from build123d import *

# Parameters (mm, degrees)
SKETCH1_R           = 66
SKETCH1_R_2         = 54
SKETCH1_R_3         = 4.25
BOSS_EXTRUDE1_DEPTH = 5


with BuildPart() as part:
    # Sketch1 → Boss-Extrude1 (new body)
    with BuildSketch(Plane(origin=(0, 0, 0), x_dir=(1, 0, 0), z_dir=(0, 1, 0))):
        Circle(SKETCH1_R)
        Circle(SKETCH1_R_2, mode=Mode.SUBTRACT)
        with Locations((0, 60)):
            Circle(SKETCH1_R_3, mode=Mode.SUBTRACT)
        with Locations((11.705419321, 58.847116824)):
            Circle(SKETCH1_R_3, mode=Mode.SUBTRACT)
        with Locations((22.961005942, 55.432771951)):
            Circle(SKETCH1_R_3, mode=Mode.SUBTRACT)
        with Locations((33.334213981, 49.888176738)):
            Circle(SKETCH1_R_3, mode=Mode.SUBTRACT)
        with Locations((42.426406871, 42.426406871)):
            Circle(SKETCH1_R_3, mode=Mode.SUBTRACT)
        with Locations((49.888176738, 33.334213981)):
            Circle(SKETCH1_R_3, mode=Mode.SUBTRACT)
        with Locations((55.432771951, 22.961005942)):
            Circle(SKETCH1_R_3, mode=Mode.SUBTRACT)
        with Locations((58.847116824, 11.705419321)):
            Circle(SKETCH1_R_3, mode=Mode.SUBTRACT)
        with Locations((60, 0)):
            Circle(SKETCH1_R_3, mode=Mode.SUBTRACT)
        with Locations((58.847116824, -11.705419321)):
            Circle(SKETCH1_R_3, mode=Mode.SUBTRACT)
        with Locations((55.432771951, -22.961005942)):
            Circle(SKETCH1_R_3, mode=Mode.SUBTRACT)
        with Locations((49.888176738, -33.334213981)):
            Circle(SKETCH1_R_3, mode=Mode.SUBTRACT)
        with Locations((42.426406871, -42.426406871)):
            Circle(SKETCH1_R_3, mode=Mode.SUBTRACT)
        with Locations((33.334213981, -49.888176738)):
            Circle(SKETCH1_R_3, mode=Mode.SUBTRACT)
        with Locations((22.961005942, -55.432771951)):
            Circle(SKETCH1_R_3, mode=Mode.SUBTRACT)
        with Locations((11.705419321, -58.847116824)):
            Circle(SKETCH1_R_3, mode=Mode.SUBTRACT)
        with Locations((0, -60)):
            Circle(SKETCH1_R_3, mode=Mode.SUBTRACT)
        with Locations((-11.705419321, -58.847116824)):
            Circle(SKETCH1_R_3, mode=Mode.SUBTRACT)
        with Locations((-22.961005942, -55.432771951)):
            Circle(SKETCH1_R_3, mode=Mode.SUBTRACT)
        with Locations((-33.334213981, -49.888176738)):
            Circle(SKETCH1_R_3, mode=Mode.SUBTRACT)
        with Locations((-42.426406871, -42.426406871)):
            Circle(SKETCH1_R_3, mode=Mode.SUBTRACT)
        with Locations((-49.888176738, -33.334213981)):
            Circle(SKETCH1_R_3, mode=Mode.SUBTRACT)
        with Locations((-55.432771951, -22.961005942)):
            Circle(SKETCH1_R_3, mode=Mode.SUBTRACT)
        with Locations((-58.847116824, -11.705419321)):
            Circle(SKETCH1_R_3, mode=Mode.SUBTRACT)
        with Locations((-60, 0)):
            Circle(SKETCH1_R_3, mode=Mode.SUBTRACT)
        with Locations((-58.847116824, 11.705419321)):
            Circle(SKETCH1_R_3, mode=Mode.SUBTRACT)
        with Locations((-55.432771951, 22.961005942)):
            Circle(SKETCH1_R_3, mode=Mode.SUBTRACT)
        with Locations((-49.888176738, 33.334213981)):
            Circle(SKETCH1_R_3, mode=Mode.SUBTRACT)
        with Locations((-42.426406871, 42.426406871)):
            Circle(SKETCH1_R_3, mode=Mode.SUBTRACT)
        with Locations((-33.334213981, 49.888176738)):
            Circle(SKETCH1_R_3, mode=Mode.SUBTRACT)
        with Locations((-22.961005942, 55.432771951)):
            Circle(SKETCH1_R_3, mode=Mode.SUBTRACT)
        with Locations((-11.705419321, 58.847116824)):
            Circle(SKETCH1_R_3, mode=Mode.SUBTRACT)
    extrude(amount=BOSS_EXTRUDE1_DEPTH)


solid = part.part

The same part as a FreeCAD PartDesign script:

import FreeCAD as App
import Part
import Sketcher
from FreeCAD import Vector
Q = App.Units.Quantity

doc = App.newDocument("Part")
body = doc.addObject("PartDesign::Body", "Body")

# Sketch on XZ plane
sketch1 = body.newObject("Sketcher::SketchObject", "Sketch")
sketch1.AttachmentSupport = (doc.getObject("XZ_Plane"), [""])
sketch1.MapMode = "FlatFace"
sketch1.addGeometry([
    Part.Circle(Vector(0, 0, 0), Vector(0, 0, 1), 66),  # 0
    Part.Circle(Vector(-33.334214, 49.888177, 0), Vector(0, 0, 1), 4.25),  # 1
    Part.Circle(Vector(-49.888177, 33.334214, 0), Vector(0, 0, 1), 4.25),  # 2
    Part.Circle(Vector(-42.426407, 42.426407, 0), Vector(0, 0, 1), 4.25),  # 3
    Part.Circle(Vector(-22.961006, 55.432772, 0), Vector(0, 0, 1), 4.25),  # 4
    Part.Circle(Vector(-11.705419, 58.847117, 0), Vector(0, 0, 1), 4.25),  # 5
    Part.Circle(Vector(-55.432772, 22.961006, 0), Vector(0, 0, 1), 4.25),  # 6
    Part.Circle(Vector(-58.847117, 11.705419, 0), Vector(0, 0, 1), 4.25),  # 7
    Part.Circle(Vector(0, 60, 0), Vector(0, 0, 1), 4.25),  # 8
    Part.Circle(Vector(11.705419, 58.847117, 0), Vector(0, 0, 1), 4.25),  # 9
    Part.Circle(Vector(22.961006, 55.432772, 0), Vector(0, 0, 1), 4.25),  # 10
    Part.Circle(Vector(33.334214, 49.888177, 0), Vector(0, 0, 1), 4.25),  # 11
    Part.Circle(Vector(42.426407, 42.426407, 0), Vector(0, 0, 1), 4.25),  # 12
    Part.Circle(Vector(49.888177, 33.334214, 0), Vector(0, 0, 1), 4.25),  # 13
    Part.Circle(Vector(55.432772, 22.961006, 0), Vector(0, 0, 1), 4.25),  # 14
    Part.Circle(Vector(58.847117, 11.705419, 0), Vector(0, 0, 1), 4.25),  # 15
    Part.Circle(Vector(-60, 0, 0), Vector(0, 0, 1), 4.25),  # 16
    Part.Circle(Vector(-58.847117, -11.705419, 0), Vector(0, 0, 1), 4.25),  # 17
    Part.Circle(Vector(-55.432772, -22.961006, 0), Vector(0, 0, 1), 4.25),  # 18
    Part.Circle(Vector(-49.888177, -33.334214, 0), Vector(0, 0, 1), 4.25),  # 19
    Part.Circle(Vector(-42.426407, -42.426407, 0), Vector(0, 0, 1), 4.25),  # 20
    Part.Circle(Vector(-33.334214, -49.888177, 0), Vector(0, 0, 1), 4.25),  # 21
    Part.Circle(Vector(-22.961006, -55.432772, 0), Vector(0, 0, 1), 4.25),  # 22
    Part.Circle(Vector(-11.705419, -58.847117, 0), Vector(0, 0, 1), 4.25),  # 23
    Part.Circle(Vector(0, 0, 0), Vector(0, 0, 1), 54),  # 24
    Part.Circle(Vector(60, 0, 0), Vector(0, 0, 1), 4.25),  # 25
    Part.Circle(Vector(58.847117, -11.705419, 0), Vector(0, 0, 1), 4.25),  # 26
    Part.Circle(Vector(55.432772, -22.961006, 0), Vector(0, 0, 1), 4.25),  # 27
    Part.Circle(Vector(0, -60, 0), Vector(0, 0, 1), 4.25),  # 28
    Part.Circle(Vector(11.705419, -58.847117, 0), Vector(0, 0, 1), 4.25),  # 29
    Part.Circle(Vector(22.961006, -55.432772, 0), Vector(0, 0, 1), 4.25),  # 30
    Part.Circle(Vector(42.426407, -42.426407, 0), Vector(0, 0, 1), 4.25),  # 31
    Part.Circle(Vector(49.888177, -33.334214, 0), Vector(0, 0, 1), 4.25),  # 32
    Part.Circle(Vector(33.334214, -49.888177, 0), Vector(0, 0, 1), 4.25),  # 33
], False)
sketch1.addConstraint([
    Sketcher.Constraint("Coincident", 0, 3, -1, 1),
    Sketcher.Constraint("Coincident", 24, 3, -1, 1),
    Sketcher.Constraint("Equal", 1, 2),
    Sketcher.Constraint("Equal", 2, 3),
    Sketcher.Constraint("Equal", 3, 4),
    Sketcher.Constraint("Equal", 4, 5),
    Sketcher.Constraint("Equal", 5, 6),
    Sketcher.Constraint("Equal", 6, 7),
    Sketcher.Constraint("Equal", 7, 8),
    Sketcher.Constraint("Equal", 8, 9),
    Sketcher.Constraint("Equal", 9, 10),
    Sketcher.Constraint("Equal", 10, 11),
    Sketcher.Constraint("Equal", 11, 12),
    Sketcher.Constraint("Equal", 12, 13),
    Sketcher.Constraint("Equal", 13, 14),
    Sketcher.Constraint("Equal", 14, 15),
    Sketcher.Constraint("Equal", 15, 16),
    Sketcher.Constraint("Equal", 16, 17),
    Sketcher.Constraint("Equal", 17, 18),
    Sketcher.Constraint("Equal", 18, 19),
    Sketcher.Constraint("Equal", 19, 20),
    Sketcher.Constraint("Equal", 20, 21),
    Sketcher.Constraint("Equal", 21, 22),
    Sketcher.Constraint("Equal", 22, 23),
    Sketcher.Constraint("Equal", 23, 25),
    Sketcher.Constraint("Equal", 25, 26),
    Sketcher.Constraint("Equal", 26, 27),
    Sketcher.Constraint("Equal", 27, 28),
    Sketcher.Constraint("Equal", 28, 29),
    Sketcher.Constraint("Equal", 29, 30),
    Sketcher.Constraint("Equal", 30, 31),
    Sketcher.Constraint("Equal", 31, 32),
    Sketcher.Constraint("Equal", 32, 33),
    Sketcher.Constraint("Symmetric", 15, 3, 17, 3, -1, 1),
    Sketcher.Constraint("Symmetric", 14, 3, 18, 3, -1, 1),
    Sketcher.Constraint("Symmetric", 13, 3, 19, 3, -1, 1),
    Sketcher.Constraint("Symmetric", 12, 3, 20, 3, -1, 1),
    Sketcher.Constraint("Symmetric", 11, 3, 21, 3, -1, 1),
    Sketcher.Constraint("Symmetric", 10, 3, 22, 3, -1, 1),
    Sketcher.Constraint("Symmetric", 9, 3, 23, 3, -1, 1),
    Sketcher.Constraint("Symmetric", 16, 3, 25, 3, -1, 1),
    Sketcher.Constraint("Symmetric", 7, 3, 26, 3, -1, 1),
    Sketcher.Constraint("Symmetric", 6, 3, 27, 3, -1, 1),
    Sketcher.Constraint("Symmetric", 8, 3, 28, 3, -1, 1),
    Sketcher.Constraint("Symmetric", 5, 3, 29, 3, -1, 1),
    Sketcher.Constraint("Symmetric", 4, 3, 30, 3, -1, 1),
    Sketcher.Constraint("Symmetric", 3, 3, 31, 3, -1, 1),
    Sketcher.Constraint("Symmetric", 2, 3, 32, 3, -1, 1),
    Sketcher.Constraint("Symmetric", 1, 3, 33, 3, -1, 1),
    Sketcher.Constraint("Symmetric", 5, 3, 9, 3, -2),
    Sketcher.Constraint("Symmetric", 4, 3, 10, 3, -2),
    Sketcher.Constraint("Symmetric", 1, 3, 11, 3, -2),
    Sketcher.Constraint("Symmetric", 3, 3, 12, 3, -2),
    Sketcher.Constraint("Symmetric", 2, 3, 13, 3, -2),
    Sketcher.Constraint("Symmetric", 6, 3, 14, 3, -2),
    Sketcher.Constraint("Symmetric", 7, 3, 15, 3, -2),
    Sketcher.Constraint("PointOnObject", 8, 3, -2),
    Sketcher.Constraint("PointOnObject", 16, 3, -1),
    Sketcher.Constraint("Diameter", 0, Q("132 mm")),
    Sketcher.Constraint("Diameter", 24, Q("108 mm")),
    Sketcher.Constraint("Diameter", 1, Q("8.5 mm")),
    Sketcher.Constraint("DistanceY", -1, 1, 8, 3, Q("60 mm")),
    Sketcher.Constraint("DistanceX", 16, 3, -1, 1, Q("60 mm")),
    Sketcher.Constraint("DistanceX", 3, 3, 4, 3, Q("19.465401 mm")),
    Sketcher.Constraint("DistanceY", 6, 3, 3, 3, Q("19.465401 mm")),
    Sketcher.Constraint("DistanceY", -1, 1, 4, 3, Q("55.432772 mm")),
    Sketcher.Constraint("DistanceX", 5, 3, -1, 1, Q("11.705419 mm")),
    Sketcher.Constraint("DistanceX", 6, 3, -1, 1, Q("55.432772 mm")),
    Sketcher.Constraint("DistanceY", -1, 1, 7, 3, Q("11.705419 mm")),
    Sketcher.Constraint("DistanceY", 3, 3, 1, 3, Q("7.46177 mm")),
    Sketcher.Constraint("DistanceX", 2, 3, 3, 3, Q("7.46177 mm")),
    Sketcher.Constraint("DistanceX", 1, 3, 4, 3, Q("10.373208 mm")),
    Sketcher.Constraint("DistanceY", 1, 3, 5, 3, Q("8.95894 mm")),
    Sketcher.Constraint("DistanceY", 6, 3, 2, 3, Q("10.373208 mm")),
    Sketcher.Constraint("DistanceX", 7, 3, 2, 3, Q("8.95894 mm")),
    Sketcher.Constraint("DistanceX", 4, 3, 10, 3, Q("45.922012 mm")),
    Sketcher.Constraint("DistanceY", 18, 3, 6, 3, Q("45.922012 mm")),
])
pad1 = body.newObject("PartDesign::Pad", "Pad")
pad1.Profile = sketch1
pad1.Length = 5
pad1.Reversed = True

doc.recompute()
